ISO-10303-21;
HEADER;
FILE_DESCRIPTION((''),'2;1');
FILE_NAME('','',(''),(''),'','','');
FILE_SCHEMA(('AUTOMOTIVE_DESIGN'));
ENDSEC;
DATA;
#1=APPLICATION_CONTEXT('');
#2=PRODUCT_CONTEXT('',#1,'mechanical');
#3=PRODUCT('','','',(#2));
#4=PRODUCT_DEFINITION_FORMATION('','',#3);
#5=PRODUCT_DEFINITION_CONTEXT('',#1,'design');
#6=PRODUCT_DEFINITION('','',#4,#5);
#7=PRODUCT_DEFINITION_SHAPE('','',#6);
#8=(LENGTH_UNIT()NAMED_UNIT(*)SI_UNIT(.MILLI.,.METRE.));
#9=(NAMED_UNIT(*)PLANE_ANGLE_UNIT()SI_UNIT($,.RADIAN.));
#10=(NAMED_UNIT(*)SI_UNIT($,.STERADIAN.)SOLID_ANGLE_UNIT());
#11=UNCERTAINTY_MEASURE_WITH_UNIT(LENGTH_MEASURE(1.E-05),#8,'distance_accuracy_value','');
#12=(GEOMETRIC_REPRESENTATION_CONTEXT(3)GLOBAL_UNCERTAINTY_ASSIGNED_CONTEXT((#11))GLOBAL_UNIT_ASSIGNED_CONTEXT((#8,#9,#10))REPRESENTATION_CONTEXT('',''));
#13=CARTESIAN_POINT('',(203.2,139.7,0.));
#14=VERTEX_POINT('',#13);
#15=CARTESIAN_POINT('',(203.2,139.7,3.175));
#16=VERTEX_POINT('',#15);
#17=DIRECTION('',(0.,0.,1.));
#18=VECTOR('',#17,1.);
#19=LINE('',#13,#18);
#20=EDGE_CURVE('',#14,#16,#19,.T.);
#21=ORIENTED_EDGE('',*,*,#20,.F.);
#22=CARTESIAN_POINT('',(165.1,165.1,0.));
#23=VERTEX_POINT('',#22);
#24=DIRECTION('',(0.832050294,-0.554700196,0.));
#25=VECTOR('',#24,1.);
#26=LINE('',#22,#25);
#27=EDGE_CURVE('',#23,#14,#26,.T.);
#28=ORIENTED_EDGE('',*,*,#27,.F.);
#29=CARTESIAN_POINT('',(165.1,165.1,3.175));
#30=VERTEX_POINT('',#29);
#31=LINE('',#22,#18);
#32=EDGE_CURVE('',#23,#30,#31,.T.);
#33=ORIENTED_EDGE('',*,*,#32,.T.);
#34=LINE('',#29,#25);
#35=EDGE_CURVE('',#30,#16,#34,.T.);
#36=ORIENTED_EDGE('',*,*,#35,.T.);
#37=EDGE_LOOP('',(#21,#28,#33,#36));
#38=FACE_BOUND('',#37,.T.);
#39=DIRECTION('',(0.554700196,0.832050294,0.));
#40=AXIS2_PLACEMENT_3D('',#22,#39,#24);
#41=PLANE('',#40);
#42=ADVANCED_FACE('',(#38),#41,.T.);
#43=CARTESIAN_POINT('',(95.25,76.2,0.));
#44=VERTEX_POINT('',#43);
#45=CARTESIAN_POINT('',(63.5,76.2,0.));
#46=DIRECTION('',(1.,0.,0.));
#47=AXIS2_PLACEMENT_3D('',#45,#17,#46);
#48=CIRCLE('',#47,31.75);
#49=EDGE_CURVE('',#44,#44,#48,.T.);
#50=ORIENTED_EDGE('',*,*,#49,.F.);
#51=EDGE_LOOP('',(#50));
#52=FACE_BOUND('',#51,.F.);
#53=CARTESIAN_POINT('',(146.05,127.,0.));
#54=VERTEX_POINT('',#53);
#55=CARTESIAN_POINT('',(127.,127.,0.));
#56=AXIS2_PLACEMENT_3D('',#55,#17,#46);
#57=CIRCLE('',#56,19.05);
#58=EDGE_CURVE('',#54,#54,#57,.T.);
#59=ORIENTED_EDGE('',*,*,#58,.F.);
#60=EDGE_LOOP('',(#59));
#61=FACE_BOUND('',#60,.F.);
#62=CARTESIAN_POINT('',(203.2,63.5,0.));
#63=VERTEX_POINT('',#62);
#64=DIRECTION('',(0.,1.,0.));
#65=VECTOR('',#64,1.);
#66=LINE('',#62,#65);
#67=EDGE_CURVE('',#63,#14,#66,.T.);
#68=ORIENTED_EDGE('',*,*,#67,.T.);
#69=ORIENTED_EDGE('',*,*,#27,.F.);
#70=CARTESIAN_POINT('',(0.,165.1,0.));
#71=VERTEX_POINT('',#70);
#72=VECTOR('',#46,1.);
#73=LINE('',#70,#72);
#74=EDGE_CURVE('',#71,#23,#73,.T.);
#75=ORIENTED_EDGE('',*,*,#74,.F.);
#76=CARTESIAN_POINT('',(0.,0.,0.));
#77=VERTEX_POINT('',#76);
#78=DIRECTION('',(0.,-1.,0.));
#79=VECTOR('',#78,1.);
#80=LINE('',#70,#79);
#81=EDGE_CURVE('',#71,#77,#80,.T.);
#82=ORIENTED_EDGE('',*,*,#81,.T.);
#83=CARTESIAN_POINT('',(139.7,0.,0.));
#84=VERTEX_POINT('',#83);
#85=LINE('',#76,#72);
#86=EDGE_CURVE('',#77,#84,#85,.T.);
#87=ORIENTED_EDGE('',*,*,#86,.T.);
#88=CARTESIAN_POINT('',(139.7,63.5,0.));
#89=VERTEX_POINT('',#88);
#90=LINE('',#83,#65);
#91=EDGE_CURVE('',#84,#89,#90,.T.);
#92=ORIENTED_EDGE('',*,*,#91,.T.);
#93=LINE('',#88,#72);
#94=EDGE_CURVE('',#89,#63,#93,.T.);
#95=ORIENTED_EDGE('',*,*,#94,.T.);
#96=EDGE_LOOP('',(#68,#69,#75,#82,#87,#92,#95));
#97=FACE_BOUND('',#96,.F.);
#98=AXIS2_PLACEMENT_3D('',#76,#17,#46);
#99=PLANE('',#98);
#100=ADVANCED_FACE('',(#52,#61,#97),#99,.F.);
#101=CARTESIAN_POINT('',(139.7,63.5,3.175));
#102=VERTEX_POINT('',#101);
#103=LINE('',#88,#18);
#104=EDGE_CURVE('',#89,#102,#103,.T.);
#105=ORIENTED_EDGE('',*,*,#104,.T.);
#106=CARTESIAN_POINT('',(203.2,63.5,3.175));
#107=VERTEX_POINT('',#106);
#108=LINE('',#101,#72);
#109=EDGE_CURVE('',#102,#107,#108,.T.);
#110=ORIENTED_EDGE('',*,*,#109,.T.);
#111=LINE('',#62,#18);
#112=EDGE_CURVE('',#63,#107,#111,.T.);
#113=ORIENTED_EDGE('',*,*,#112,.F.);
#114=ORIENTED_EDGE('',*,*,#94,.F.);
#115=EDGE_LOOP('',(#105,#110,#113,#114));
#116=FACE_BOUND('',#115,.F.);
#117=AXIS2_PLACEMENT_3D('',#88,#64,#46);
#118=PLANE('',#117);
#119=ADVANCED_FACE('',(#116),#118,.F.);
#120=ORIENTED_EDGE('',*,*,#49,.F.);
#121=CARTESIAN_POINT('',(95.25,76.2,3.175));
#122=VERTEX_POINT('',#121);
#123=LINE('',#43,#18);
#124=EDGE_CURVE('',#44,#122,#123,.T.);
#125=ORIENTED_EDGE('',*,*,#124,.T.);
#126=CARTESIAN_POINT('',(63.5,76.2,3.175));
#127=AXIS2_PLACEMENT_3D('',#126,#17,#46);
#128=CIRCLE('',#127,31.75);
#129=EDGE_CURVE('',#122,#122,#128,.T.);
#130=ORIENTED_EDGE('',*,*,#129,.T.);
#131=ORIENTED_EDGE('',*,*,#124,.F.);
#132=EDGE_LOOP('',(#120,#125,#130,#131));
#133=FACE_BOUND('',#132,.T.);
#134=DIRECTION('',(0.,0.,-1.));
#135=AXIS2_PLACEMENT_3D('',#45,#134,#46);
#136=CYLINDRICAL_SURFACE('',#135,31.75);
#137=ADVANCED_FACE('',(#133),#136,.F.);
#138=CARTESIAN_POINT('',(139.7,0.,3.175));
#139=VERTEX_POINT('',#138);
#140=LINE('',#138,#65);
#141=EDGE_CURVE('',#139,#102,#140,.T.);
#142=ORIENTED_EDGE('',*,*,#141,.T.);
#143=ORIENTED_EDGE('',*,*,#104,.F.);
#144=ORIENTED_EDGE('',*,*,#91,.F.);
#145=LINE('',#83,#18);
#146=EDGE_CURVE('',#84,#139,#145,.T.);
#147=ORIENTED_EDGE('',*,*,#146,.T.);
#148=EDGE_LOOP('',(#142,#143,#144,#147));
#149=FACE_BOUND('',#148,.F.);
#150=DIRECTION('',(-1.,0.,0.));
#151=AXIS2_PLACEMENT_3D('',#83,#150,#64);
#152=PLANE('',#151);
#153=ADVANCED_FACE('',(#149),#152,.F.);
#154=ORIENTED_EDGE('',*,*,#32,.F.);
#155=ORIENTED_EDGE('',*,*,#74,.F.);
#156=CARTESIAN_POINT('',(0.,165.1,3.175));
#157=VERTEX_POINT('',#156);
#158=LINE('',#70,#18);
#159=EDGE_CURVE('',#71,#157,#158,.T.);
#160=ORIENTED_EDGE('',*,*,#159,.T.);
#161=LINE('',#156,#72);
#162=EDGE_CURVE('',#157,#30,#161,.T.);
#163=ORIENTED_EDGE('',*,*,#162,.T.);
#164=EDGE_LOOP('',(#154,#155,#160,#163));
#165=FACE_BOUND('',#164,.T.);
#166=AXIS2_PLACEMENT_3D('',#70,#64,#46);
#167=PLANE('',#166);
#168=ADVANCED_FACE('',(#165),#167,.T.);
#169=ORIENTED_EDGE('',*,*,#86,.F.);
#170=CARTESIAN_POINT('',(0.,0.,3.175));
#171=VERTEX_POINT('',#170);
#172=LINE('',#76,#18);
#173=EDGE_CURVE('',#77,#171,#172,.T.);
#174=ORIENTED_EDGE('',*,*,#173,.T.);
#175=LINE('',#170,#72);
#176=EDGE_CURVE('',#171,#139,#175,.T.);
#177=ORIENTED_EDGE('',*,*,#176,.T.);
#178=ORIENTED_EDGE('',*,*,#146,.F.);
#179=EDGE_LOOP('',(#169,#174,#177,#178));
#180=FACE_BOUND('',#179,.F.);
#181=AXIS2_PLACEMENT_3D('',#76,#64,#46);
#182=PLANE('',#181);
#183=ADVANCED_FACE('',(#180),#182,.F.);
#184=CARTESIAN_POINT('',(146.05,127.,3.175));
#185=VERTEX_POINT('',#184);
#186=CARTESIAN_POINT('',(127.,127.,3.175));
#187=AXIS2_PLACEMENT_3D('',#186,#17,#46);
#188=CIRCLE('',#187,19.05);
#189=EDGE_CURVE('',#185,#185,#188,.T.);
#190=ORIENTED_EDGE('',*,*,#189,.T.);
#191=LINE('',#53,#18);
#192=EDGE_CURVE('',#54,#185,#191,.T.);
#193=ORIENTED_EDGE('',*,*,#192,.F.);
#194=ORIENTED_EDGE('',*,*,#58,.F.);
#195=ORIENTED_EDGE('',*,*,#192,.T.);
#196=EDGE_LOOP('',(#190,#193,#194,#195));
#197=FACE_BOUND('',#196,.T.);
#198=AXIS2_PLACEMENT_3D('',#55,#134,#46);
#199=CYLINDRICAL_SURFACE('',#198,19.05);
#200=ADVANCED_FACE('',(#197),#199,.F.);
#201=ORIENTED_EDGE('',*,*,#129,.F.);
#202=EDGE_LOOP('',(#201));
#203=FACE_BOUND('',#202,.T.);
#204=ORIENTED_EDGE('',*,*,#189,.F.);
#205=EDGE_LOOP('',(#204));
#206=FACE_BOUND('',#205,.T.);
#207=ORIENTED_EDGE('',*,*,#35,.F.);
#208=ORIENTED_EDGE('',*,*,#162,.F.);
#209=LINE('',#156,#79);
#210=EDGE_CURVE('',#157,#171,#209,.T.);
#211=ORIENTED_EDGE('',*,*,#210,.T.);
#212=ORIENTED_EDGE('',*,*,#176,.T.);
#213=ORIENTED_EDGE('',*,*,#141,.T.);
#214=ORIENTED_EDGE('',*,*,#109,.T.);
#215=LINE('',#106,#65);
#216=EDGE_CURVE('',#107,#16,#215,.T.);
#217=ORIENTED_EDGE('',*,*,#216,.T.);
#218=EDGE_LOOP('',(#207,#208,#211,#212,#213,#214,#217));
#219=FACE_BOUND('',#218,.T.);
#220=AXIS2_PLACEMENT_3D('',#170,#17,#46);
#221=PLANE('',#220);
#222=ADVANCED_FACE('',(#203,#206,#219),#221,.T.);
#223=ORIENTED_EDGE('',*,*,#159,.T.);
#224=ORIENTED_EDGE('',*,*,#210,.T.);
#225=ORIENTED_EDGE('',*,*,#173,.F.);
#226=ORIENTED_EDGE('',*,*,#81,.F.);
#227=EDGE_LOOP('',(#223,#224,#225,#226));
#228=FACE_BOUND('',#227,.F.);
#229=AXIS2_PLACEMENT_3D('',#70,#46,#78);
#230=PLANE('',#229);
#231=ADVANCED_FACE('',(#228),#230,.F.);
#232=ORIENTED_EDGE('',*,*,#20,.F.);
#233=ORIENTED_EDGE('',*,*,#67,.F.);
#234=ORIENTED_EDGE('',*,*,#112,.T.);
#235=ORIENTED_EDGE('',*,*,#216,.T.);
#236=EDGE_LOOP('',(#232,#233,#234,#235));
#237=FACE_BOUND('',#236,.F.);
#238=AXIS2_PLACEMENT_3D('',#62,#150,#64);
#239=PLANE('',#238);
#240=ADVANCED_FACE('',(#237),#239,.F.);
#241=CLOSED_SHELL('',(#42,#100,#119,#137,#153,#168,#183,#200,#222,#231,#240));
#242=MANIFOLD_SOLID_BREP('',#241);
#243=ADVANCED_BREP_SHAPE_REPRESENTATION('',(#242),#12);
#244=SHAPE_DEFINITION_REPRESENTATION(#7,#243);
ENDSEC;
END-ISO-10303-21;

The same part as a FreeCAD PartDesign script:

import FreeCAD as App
import Part
import Sketcher

V = App.Vector
Q = App.Units.Quantity


def add_polygon(sketch, points):
    """Adds a closed chain of lines whose ends are joined by coincident constraints."""
    first, n = sketch.GeometryCount, len(points)
    for a, b in zip(points, points[1:] + points[:1]):
        sketch.addGeometry(Part.LineSegment(App.Vector(*a, 0), App.Vector(*b, 0)), False)
    for i in range(n):
        sketch.addConstraint(Sketcher.Constraint("Coincident", first + i, 2, first + (i + 1) % n, 1))

doc = App.newDocument("Part")
body = doc.addObject("PartDesign::Body", "Body")

sketch1 = body.newObject("Sketcher::SketchObject", "Sketch")
sketch1.AttachmentSupport = (doc.getObject("XY_Plane"), [""])
sketch1.MapMode = "FlatFace"
add_polygon(sketch1, [(165.1, 165.1), (0, 165.1), (0, 0), (139.7, 0), (139.7, 63.5), (203.2, 63.5), (203.2, 139.7)])
sketch1.addGeometry(Part.Circle(V(63.5, 76.2, 0), V(0, 0, 1), 31.75), False)
sketch1.addGeometry(Part.Circle(V(127, 127, 0), V(0, 0, 1), 19.05), False)
sketch1.addConstraint(Sketcher.Constraint("Horizontal", 0))
sketch1.addConstraint(Sketcher.Constraint("Vertical", 1))
sketch1.addConstraint(Sketcher.Constraint("Horizontal", 2))
sketch1.addConstraint(Sketcher.Constraint("Vertical", 3))
sketch1.addConstraint(Sketcher.Constraint("Horizontal", 4))
sketch1.addConstraint(Sketcher.Constraint("Vertical", 5))
sketch1.addConstraint(Sketcher.Constraint("Coincident", 1, 2, -1, 1))
sketch1.addConstraint(Sketcher.Constraint("Equal", 0, 1))
sketch1.addConstraint(Sketcher.Constraint("Equal", 4, 3))
sketch1.addConstraint(Sketcher.Constraint("Diameter", 7, Q("2.5 in")))
sketch1.addConstraint(Sketcher.Constraint("Diameter", 8, Q("1.5 in")))
sketch1.addConstraint(Sketcher.Constraint("DistanceX", 0, 2, 0, 1, Q("6.5 in")))
sketch1.addConstraint(Sketcher.Constraint("DistanceX", 4, 1, 4, 2, Q("2.5 in")))
sketch1.addConstraint(Sketcher.Constraint("DistanceX", -1, 1, 7, 3, Q("2.5 in")))
sketch1.addConstraint(Sketcher.Constraint("DistanceX", 7, 3, 8, 3, Q("2.5 in")))
sketch1.addConstraint(Sketcher.Constraint("DistanceY", 8, 3, 0, 2, Q("1.5 in")))
sketch1.addConstraint(Sketcher.Constraint("DistanceY", 7, 3, 5, 2, Q("2.5 in")))
sketch1.addConstraint(Sketcher.Constraint("DistanceX", 6, 2, 5, 2, Q("1.5 in")))
sketch1.addConstraint(Sketcher.Constraint("DistanceY", 5, 1, 5, 2, Q("3 in")))
pad1 = body.newObject("PartDesign::Pad", "Pad")
pad1.Profile = sketch1
pad1.Length = Q("0.125 in")

doc.recompute()
